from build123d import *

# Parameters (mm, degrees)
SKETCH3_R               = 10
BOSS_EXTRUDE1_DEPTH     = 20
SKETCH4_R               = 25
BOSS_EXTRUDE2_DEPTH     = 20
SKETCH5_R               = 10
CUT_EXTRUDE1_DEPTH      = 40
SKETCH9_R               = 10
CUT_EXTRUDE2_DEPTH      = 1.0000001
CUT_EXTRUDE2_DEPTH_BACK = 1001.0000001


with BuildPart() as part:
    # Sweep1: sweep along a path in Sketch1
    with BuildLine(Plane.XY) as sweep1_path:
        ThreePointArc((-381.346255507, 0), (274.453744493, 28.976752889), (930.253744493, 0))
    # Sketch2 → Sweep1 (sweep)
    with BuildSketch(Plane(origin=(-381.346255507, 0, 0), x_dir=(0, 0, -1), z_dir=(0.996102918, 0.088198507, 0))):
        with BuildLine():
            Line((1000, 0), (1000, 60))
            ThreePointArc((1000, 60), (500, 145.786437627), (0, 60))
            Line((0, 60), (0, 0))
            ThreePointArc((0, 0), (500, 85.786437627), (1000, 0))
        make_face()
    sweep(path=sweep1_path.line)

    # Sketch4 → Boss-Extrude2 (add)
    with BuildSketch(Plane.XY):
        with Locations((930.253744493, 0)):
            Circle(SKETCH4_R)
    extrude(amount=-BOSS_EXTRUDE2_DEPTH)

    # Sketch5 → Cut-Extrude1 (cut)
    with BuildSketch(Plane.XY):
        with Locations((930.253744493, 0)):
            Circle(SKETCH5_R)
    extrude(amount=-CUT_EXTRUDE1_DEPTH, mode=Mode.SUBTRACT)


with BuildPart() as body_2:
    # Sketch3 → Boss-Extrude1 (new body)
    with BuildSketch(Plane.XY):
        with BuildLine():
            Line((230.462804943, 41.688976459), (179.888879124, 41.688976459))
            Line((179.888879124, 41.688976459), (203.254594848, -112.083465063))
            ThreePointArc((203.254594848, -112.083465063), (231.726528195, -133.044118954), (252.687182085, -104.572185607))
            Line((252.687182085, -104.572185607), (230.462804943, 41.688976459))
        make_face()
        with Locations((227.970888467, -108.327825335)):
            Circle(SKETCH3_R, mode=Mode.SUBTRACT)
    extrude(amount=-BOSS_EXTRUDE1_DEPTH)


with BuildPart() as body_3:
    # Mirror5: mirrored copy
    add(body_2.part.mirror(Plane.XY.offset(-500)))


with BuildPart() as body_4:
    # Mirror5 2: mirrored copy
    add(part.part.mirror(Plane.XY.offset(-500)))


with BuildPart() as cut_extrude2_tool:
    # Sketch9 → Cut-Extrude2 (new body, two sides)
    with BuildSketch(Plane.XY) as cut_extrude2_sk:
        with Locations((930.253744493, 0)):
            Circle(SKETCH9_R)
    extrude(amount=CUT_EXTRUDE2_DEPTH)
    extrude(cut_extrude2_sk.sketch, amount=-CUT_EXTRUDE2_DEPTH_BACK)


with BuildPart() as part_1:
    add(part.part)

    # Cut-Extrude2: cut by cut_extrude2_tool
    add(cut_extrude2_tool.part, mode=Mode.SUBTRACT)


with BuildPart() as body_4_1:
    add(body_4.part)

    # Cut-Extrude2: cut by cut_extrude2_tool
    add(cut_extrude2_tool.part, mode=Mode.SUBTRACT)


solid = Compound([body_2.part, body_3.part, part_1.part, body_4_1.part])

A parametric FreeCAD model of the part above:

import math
import FreeCAD as App
import Part
import Sketcher
Q = App.Units.Quantity

doc = App.newDocument("Part")
body = doc.addObject("PartDesign::Body", "Body")

sketch1 = body.newObject("Sketcher::SketchObject", "Sketch")
sketch1.Placement = App.Placement(App.Vector(-381.346256, 0, 0), App.Rotation(App.Vector(0, 0, -1), App.Vector(-0.088198507, 0.996102918, 0), App.Vector(0.996102918, 0.088198507, 0), "ZXY"))
sketch1.addGeometry(Part.LineSegment(App.Vector(1000, 0, 0), App.Vector(1000, 60, 0)), False)
sketch1.addGeometry(Part.ArcOfCircle(Part.Circle(App.Vector(500, -1354, 0), App.Vector(0, 0, 1), 1500), math.radians(71), math.radians(109)), False)
sketch1.addGeometry(Part.LineSegment(App.Vector(0, 60, 0), App.Vector(0, 0, 0)), False)
sketch1.addGeometry(Part.ArcOfCircle(Part.Circle(App.Vector(500, -1414, 0), App.Vector(0, 0, 1), 1500), math.radians(71), math.radians(109)), False)
sketch1.addConstraint(Sketcher.Constraint("Coincident", 0, 2, 1, 1))
sketch1.addConstraint(Sketcher.Constraint("Coincident", 1, 2, 2, 1))
sketch1.addConstraint(Sketcher.Constraint("Coincident", 2, 2, 3, 2))
sketch1.addConstraint(Sketcher.Constraint("Coincident", 3, 1, 0, 1))
sketch1.addConstraint(Sketcher.Constraint("Vertical", 0))
sketch1.addConstraint(Sketcher.Constraint("Vertical", 2))
sketch1.addConstraint(Sketcher.Constraint("Coincident", 2, 2, -1, 1))
sketch1.addConstraint(Sketcher.Constraint("Equal", 1, 3))
sketch1.addConstraint(Sketcher.Constraint("Vertical", 1, 3, 3, 3))
sketch1.addConstraint(Sketcher.Constraint("Radius", 1, Q("1500 mm")))
sketch1.addConstraint(Sketcher.Constraint("DistanceY", 0, 1, 0, 2, Q("60 mm")))
sketch1.addConstraint(Sketcher.Constraint("DistanceX", -1, 1, 1, 3, Q("500 mm")))
sketch1.addConstraint(Sketcher.Constraint("DistanceX", -1, 1, 0, 2, Q("1000 mm")))

sketch2 = body.newObject("Sketcher::SketchObject", "Sketch001")
sketch2.AttachmentSupport = (doc.getObject("XY_Plane"), [""])
sketch2.MapMode = "FlatFace"
sketch2.addGeometry(Part.ArcOfCircle(Part.Circle(App.Vector(274, -7407, 0), App.Vector(0, 0, 1), 7435), math.radians(84.94), math.radians(95.06)), False)
sketch2.addConstraint(Sketcher.Constraint("PointOnObject", 0, 1, -1))
sketch2.addConstraint(Sketcher.Constraint("PointOnObject", 0, 2, -1))
sketch2.addConstraint(Sketcher.Constraint("Radius", 0, Q("7435.5 mm")))
sketch2.addConstraint(Sketcher.Constraint("DistanceX", 0, 2, 0, 1, Q("1311.6 mm")))
sketch2.addConstraint(Sketcher.Constraint("DistanceX", -1, 1, 0, 3, Q("274.453744 mm")))
doc.recompute()

additivepipe = body.newObject("PartDesign::AdditivePipe", "AdditivePipe")
additivepipe.Profile = sketch1
additivepipe.Spine = (sketch2, ["Edge1"])

sketch3 = body.newObject("Sketcher::SketchObject", "Sketch002")
sketch3.AttachmentSupport = (doc.getObject("XY_Plane"), [""])
sketch3.MapMode = "FlatFace"
sketch3.addGeometry(Part.Circle(App.Vector(930, 0, 0), App.Vector(0, 0, 1), 25), False)
sketch3.addConstraint(Sketcher.Constraint("PointOnObject", 0, 3, -1))
sketch3.addConstraint(Sketcher.Constraint("Diameter", 0, Q("50 mm")))
sketch3.addConstraint(Sketcher.Constraint("DistanceX", -1, 1, 0, 3, Q("930.253744 mm")))
pad1 = body.newObject("PartDesign::Pad", "Pad")
pad1.Profile = sketch3
pad1.Length = 20
pad1.Reversed = True

sketch4 = body.newObject("Sketcher::SketchObject", "Sketch003")
sketch4.AttachmentSupport = (doc.getObject("XY_Plane"), [""])
sketch4.MapMode = "FlatFace"
sketch4.addGeometry(Part.Circle(App.Vector(930, 0, 0), App.Vector(0, 0, 1), 10), False)
sketch4.addConstraint(Sketcher.Constraint("PointOnObject", 0, 3, -1))
sketch4.addConstraint(Sketcher.Constraint("Diameter", 0, Q("20 mm")))
sketch4.addConstraint(Sketcher.Constraint("DistanceX", -1, 1, 0, 3, Q("930.253744 mm")))
pocket1 = body.newObject("PartDesign::Pocket", "Pocket")
pocket1.Profile = sketch4
pocket1.Length = 40
body2 = doc.addObject("PartDesign::Body", "Body001")

sketch5 = body2.newObject("Sketcher::SketchObject", "Sketch004")
sketch5.AttachmentSupport = (doc.getObject("XY_Plane001"), [""])
sketch5.MapMode = "FlatFace"
sketch5.addGeometry(Part.LineSegment(App.Vector(230, 42, 0), App.Vector(180, 42, 0)), False)
sketch5.addGeometry(Part.LineSegment(App.Vector(180, 42, 0), App.Vector(203, -112, 0)), False)
sketch5.addGeometry(Part.ArcOfCircle(Part.Circle(App.Vector(228, -108, 0), App.Vector(0, 0, 1), 25), math.radians(-171), math.radians(9)), False)
sketch5.addGeometry(Part.LineSegment(App.Vector(253, -105, 0), App.Vector(230, 42, 0)), False)
sketch5.addGeometry(Part.Circle(App.Vector(228, -108, 0), App.Vector(0, 0, 1), 10), False)
sketch5.addConstraint(Sketcher.Constraint("Coincident", 0, 2, 1, 1))
sketch5.addConstraint(Sketcher.Constraint("Tangent", 1, 2, 2, 1))
sketch5.addConstraint(Sketcher.Constraint("Tangent", 2, 2, 3, 1))
sketch5.addConstraint(Sketcher.Constraint("Coincident", 3, 2, 0, 1))
sketch5.addConstraint(Sketcher.Constraint("Horizontal", 0))
sketch5.addConstraint(Sketcher.Constraint("Coincident", 4, 3, 2, 3))
sketch5.addConstraint(Sketcher.Constraint("Parallel", 1, 3))
sketch5.addConstraint(Sketcher.Constraint("Diameter", 4, Q("20 mm")))
sketch5.addConstraint(Sketcher.Constraint("Radius", 2, Q("25 mm")))
sketch5.addConstraint(Sketcher.Constraint("Angle", 1, Q("-81.36 deg")))
sketch5.addConstraint(Sketcher.Constraint("DistanceY", 4, 3, 0, 2, Q("150.016802 mm")))
sketch5.addConstraint(Sketcher.Constraint("DistanceX", -1, 1, 2, 3, Q("227.970888 mm")))
sketch5.addConstraint(Sketcher.Constraint("DistanceY", 2, 3, -1, 1, Q("108.327825 mm")))
pad2 = body2.newObject("PartDesign::Pad", "Pad001")
pad2.Profile = sketch5
pad2.Length = 20
pad2.Reversed = True
body3 = doc.addObject("PartDesign::Body", "Body002")
doc.recompute()

mirroring = doc.addObject("Part::Mirroring", "Mirroring")
mirroring.Source = body2
mirroring.Base = App.Vector(0, 0, -500)
mirroring.Normal = App.Vector(0, 0, 1)
body3.BaseFeature = mirroring
doc.recompute()
body4 = doc.addObject("PartDesign::Body", "Body003")
doc.recompute()

mirroring2 = doc.addObject("Part::Mirroring", "Mirroring001")
mirroring2.Source = body
mirroring2.Base = App.Vector(0, 0, -500)
mirroring2.Normal = App.Vector(0, 0, 1)
body4.BaseFeature = mirroring2
doc.recompute()
body5 = doc.addObject("PartDesign::Body", "Body004")

sketch6 = body5.newObject("Sketcher::SketchObject", "Sketch005")
sketch6.AttachmentSupport = (doc.getObject("XY_Plane004"), [""])
sketch6.MapMode = "FlatFace"
sketch6.addGeometry(Part.Circle(App.Vector(930, 0, 0), App.Vector(0, 0, 1), 10), False)
sketch6.addConstraint(Sketcher.Constraint("PointOnObject", 0, 3, -1))
sketch6.addConstraint(Sketcher.Constraint("Diameter", 0, Q("20 mm")))
sketch6.addConstraint(Sketcher.Constraint("DistanceX", -1, 1, 0, 3, Q("930.253744 mm")))
pad3 = body5.newObject("PartDesign::Pad", "Pad002")
pad3.Profile = sketch6
pad3.Type = "TwoLengths"
pad3.Length = 1
pad3.Length2 = 1001
doc.recompute()

body6 = doc.addObject("PartDesign::Body", "Body005")
body6.BaseFeature = body5
boolean = body.newObject("PartDesign::Boolean", "Boolean")
boolean.Type = "Cut"
boolean.addObjects([body6])
doc.recompute()

boolean2 = body4.newObject("PartDesign::Boolean", "Boolean001")
boolean2.Type = "Cut"
boolean2.addObjects([body5])
mirroring.Visibility = False
mirroring2.Visibility = False

doc.recompute()
